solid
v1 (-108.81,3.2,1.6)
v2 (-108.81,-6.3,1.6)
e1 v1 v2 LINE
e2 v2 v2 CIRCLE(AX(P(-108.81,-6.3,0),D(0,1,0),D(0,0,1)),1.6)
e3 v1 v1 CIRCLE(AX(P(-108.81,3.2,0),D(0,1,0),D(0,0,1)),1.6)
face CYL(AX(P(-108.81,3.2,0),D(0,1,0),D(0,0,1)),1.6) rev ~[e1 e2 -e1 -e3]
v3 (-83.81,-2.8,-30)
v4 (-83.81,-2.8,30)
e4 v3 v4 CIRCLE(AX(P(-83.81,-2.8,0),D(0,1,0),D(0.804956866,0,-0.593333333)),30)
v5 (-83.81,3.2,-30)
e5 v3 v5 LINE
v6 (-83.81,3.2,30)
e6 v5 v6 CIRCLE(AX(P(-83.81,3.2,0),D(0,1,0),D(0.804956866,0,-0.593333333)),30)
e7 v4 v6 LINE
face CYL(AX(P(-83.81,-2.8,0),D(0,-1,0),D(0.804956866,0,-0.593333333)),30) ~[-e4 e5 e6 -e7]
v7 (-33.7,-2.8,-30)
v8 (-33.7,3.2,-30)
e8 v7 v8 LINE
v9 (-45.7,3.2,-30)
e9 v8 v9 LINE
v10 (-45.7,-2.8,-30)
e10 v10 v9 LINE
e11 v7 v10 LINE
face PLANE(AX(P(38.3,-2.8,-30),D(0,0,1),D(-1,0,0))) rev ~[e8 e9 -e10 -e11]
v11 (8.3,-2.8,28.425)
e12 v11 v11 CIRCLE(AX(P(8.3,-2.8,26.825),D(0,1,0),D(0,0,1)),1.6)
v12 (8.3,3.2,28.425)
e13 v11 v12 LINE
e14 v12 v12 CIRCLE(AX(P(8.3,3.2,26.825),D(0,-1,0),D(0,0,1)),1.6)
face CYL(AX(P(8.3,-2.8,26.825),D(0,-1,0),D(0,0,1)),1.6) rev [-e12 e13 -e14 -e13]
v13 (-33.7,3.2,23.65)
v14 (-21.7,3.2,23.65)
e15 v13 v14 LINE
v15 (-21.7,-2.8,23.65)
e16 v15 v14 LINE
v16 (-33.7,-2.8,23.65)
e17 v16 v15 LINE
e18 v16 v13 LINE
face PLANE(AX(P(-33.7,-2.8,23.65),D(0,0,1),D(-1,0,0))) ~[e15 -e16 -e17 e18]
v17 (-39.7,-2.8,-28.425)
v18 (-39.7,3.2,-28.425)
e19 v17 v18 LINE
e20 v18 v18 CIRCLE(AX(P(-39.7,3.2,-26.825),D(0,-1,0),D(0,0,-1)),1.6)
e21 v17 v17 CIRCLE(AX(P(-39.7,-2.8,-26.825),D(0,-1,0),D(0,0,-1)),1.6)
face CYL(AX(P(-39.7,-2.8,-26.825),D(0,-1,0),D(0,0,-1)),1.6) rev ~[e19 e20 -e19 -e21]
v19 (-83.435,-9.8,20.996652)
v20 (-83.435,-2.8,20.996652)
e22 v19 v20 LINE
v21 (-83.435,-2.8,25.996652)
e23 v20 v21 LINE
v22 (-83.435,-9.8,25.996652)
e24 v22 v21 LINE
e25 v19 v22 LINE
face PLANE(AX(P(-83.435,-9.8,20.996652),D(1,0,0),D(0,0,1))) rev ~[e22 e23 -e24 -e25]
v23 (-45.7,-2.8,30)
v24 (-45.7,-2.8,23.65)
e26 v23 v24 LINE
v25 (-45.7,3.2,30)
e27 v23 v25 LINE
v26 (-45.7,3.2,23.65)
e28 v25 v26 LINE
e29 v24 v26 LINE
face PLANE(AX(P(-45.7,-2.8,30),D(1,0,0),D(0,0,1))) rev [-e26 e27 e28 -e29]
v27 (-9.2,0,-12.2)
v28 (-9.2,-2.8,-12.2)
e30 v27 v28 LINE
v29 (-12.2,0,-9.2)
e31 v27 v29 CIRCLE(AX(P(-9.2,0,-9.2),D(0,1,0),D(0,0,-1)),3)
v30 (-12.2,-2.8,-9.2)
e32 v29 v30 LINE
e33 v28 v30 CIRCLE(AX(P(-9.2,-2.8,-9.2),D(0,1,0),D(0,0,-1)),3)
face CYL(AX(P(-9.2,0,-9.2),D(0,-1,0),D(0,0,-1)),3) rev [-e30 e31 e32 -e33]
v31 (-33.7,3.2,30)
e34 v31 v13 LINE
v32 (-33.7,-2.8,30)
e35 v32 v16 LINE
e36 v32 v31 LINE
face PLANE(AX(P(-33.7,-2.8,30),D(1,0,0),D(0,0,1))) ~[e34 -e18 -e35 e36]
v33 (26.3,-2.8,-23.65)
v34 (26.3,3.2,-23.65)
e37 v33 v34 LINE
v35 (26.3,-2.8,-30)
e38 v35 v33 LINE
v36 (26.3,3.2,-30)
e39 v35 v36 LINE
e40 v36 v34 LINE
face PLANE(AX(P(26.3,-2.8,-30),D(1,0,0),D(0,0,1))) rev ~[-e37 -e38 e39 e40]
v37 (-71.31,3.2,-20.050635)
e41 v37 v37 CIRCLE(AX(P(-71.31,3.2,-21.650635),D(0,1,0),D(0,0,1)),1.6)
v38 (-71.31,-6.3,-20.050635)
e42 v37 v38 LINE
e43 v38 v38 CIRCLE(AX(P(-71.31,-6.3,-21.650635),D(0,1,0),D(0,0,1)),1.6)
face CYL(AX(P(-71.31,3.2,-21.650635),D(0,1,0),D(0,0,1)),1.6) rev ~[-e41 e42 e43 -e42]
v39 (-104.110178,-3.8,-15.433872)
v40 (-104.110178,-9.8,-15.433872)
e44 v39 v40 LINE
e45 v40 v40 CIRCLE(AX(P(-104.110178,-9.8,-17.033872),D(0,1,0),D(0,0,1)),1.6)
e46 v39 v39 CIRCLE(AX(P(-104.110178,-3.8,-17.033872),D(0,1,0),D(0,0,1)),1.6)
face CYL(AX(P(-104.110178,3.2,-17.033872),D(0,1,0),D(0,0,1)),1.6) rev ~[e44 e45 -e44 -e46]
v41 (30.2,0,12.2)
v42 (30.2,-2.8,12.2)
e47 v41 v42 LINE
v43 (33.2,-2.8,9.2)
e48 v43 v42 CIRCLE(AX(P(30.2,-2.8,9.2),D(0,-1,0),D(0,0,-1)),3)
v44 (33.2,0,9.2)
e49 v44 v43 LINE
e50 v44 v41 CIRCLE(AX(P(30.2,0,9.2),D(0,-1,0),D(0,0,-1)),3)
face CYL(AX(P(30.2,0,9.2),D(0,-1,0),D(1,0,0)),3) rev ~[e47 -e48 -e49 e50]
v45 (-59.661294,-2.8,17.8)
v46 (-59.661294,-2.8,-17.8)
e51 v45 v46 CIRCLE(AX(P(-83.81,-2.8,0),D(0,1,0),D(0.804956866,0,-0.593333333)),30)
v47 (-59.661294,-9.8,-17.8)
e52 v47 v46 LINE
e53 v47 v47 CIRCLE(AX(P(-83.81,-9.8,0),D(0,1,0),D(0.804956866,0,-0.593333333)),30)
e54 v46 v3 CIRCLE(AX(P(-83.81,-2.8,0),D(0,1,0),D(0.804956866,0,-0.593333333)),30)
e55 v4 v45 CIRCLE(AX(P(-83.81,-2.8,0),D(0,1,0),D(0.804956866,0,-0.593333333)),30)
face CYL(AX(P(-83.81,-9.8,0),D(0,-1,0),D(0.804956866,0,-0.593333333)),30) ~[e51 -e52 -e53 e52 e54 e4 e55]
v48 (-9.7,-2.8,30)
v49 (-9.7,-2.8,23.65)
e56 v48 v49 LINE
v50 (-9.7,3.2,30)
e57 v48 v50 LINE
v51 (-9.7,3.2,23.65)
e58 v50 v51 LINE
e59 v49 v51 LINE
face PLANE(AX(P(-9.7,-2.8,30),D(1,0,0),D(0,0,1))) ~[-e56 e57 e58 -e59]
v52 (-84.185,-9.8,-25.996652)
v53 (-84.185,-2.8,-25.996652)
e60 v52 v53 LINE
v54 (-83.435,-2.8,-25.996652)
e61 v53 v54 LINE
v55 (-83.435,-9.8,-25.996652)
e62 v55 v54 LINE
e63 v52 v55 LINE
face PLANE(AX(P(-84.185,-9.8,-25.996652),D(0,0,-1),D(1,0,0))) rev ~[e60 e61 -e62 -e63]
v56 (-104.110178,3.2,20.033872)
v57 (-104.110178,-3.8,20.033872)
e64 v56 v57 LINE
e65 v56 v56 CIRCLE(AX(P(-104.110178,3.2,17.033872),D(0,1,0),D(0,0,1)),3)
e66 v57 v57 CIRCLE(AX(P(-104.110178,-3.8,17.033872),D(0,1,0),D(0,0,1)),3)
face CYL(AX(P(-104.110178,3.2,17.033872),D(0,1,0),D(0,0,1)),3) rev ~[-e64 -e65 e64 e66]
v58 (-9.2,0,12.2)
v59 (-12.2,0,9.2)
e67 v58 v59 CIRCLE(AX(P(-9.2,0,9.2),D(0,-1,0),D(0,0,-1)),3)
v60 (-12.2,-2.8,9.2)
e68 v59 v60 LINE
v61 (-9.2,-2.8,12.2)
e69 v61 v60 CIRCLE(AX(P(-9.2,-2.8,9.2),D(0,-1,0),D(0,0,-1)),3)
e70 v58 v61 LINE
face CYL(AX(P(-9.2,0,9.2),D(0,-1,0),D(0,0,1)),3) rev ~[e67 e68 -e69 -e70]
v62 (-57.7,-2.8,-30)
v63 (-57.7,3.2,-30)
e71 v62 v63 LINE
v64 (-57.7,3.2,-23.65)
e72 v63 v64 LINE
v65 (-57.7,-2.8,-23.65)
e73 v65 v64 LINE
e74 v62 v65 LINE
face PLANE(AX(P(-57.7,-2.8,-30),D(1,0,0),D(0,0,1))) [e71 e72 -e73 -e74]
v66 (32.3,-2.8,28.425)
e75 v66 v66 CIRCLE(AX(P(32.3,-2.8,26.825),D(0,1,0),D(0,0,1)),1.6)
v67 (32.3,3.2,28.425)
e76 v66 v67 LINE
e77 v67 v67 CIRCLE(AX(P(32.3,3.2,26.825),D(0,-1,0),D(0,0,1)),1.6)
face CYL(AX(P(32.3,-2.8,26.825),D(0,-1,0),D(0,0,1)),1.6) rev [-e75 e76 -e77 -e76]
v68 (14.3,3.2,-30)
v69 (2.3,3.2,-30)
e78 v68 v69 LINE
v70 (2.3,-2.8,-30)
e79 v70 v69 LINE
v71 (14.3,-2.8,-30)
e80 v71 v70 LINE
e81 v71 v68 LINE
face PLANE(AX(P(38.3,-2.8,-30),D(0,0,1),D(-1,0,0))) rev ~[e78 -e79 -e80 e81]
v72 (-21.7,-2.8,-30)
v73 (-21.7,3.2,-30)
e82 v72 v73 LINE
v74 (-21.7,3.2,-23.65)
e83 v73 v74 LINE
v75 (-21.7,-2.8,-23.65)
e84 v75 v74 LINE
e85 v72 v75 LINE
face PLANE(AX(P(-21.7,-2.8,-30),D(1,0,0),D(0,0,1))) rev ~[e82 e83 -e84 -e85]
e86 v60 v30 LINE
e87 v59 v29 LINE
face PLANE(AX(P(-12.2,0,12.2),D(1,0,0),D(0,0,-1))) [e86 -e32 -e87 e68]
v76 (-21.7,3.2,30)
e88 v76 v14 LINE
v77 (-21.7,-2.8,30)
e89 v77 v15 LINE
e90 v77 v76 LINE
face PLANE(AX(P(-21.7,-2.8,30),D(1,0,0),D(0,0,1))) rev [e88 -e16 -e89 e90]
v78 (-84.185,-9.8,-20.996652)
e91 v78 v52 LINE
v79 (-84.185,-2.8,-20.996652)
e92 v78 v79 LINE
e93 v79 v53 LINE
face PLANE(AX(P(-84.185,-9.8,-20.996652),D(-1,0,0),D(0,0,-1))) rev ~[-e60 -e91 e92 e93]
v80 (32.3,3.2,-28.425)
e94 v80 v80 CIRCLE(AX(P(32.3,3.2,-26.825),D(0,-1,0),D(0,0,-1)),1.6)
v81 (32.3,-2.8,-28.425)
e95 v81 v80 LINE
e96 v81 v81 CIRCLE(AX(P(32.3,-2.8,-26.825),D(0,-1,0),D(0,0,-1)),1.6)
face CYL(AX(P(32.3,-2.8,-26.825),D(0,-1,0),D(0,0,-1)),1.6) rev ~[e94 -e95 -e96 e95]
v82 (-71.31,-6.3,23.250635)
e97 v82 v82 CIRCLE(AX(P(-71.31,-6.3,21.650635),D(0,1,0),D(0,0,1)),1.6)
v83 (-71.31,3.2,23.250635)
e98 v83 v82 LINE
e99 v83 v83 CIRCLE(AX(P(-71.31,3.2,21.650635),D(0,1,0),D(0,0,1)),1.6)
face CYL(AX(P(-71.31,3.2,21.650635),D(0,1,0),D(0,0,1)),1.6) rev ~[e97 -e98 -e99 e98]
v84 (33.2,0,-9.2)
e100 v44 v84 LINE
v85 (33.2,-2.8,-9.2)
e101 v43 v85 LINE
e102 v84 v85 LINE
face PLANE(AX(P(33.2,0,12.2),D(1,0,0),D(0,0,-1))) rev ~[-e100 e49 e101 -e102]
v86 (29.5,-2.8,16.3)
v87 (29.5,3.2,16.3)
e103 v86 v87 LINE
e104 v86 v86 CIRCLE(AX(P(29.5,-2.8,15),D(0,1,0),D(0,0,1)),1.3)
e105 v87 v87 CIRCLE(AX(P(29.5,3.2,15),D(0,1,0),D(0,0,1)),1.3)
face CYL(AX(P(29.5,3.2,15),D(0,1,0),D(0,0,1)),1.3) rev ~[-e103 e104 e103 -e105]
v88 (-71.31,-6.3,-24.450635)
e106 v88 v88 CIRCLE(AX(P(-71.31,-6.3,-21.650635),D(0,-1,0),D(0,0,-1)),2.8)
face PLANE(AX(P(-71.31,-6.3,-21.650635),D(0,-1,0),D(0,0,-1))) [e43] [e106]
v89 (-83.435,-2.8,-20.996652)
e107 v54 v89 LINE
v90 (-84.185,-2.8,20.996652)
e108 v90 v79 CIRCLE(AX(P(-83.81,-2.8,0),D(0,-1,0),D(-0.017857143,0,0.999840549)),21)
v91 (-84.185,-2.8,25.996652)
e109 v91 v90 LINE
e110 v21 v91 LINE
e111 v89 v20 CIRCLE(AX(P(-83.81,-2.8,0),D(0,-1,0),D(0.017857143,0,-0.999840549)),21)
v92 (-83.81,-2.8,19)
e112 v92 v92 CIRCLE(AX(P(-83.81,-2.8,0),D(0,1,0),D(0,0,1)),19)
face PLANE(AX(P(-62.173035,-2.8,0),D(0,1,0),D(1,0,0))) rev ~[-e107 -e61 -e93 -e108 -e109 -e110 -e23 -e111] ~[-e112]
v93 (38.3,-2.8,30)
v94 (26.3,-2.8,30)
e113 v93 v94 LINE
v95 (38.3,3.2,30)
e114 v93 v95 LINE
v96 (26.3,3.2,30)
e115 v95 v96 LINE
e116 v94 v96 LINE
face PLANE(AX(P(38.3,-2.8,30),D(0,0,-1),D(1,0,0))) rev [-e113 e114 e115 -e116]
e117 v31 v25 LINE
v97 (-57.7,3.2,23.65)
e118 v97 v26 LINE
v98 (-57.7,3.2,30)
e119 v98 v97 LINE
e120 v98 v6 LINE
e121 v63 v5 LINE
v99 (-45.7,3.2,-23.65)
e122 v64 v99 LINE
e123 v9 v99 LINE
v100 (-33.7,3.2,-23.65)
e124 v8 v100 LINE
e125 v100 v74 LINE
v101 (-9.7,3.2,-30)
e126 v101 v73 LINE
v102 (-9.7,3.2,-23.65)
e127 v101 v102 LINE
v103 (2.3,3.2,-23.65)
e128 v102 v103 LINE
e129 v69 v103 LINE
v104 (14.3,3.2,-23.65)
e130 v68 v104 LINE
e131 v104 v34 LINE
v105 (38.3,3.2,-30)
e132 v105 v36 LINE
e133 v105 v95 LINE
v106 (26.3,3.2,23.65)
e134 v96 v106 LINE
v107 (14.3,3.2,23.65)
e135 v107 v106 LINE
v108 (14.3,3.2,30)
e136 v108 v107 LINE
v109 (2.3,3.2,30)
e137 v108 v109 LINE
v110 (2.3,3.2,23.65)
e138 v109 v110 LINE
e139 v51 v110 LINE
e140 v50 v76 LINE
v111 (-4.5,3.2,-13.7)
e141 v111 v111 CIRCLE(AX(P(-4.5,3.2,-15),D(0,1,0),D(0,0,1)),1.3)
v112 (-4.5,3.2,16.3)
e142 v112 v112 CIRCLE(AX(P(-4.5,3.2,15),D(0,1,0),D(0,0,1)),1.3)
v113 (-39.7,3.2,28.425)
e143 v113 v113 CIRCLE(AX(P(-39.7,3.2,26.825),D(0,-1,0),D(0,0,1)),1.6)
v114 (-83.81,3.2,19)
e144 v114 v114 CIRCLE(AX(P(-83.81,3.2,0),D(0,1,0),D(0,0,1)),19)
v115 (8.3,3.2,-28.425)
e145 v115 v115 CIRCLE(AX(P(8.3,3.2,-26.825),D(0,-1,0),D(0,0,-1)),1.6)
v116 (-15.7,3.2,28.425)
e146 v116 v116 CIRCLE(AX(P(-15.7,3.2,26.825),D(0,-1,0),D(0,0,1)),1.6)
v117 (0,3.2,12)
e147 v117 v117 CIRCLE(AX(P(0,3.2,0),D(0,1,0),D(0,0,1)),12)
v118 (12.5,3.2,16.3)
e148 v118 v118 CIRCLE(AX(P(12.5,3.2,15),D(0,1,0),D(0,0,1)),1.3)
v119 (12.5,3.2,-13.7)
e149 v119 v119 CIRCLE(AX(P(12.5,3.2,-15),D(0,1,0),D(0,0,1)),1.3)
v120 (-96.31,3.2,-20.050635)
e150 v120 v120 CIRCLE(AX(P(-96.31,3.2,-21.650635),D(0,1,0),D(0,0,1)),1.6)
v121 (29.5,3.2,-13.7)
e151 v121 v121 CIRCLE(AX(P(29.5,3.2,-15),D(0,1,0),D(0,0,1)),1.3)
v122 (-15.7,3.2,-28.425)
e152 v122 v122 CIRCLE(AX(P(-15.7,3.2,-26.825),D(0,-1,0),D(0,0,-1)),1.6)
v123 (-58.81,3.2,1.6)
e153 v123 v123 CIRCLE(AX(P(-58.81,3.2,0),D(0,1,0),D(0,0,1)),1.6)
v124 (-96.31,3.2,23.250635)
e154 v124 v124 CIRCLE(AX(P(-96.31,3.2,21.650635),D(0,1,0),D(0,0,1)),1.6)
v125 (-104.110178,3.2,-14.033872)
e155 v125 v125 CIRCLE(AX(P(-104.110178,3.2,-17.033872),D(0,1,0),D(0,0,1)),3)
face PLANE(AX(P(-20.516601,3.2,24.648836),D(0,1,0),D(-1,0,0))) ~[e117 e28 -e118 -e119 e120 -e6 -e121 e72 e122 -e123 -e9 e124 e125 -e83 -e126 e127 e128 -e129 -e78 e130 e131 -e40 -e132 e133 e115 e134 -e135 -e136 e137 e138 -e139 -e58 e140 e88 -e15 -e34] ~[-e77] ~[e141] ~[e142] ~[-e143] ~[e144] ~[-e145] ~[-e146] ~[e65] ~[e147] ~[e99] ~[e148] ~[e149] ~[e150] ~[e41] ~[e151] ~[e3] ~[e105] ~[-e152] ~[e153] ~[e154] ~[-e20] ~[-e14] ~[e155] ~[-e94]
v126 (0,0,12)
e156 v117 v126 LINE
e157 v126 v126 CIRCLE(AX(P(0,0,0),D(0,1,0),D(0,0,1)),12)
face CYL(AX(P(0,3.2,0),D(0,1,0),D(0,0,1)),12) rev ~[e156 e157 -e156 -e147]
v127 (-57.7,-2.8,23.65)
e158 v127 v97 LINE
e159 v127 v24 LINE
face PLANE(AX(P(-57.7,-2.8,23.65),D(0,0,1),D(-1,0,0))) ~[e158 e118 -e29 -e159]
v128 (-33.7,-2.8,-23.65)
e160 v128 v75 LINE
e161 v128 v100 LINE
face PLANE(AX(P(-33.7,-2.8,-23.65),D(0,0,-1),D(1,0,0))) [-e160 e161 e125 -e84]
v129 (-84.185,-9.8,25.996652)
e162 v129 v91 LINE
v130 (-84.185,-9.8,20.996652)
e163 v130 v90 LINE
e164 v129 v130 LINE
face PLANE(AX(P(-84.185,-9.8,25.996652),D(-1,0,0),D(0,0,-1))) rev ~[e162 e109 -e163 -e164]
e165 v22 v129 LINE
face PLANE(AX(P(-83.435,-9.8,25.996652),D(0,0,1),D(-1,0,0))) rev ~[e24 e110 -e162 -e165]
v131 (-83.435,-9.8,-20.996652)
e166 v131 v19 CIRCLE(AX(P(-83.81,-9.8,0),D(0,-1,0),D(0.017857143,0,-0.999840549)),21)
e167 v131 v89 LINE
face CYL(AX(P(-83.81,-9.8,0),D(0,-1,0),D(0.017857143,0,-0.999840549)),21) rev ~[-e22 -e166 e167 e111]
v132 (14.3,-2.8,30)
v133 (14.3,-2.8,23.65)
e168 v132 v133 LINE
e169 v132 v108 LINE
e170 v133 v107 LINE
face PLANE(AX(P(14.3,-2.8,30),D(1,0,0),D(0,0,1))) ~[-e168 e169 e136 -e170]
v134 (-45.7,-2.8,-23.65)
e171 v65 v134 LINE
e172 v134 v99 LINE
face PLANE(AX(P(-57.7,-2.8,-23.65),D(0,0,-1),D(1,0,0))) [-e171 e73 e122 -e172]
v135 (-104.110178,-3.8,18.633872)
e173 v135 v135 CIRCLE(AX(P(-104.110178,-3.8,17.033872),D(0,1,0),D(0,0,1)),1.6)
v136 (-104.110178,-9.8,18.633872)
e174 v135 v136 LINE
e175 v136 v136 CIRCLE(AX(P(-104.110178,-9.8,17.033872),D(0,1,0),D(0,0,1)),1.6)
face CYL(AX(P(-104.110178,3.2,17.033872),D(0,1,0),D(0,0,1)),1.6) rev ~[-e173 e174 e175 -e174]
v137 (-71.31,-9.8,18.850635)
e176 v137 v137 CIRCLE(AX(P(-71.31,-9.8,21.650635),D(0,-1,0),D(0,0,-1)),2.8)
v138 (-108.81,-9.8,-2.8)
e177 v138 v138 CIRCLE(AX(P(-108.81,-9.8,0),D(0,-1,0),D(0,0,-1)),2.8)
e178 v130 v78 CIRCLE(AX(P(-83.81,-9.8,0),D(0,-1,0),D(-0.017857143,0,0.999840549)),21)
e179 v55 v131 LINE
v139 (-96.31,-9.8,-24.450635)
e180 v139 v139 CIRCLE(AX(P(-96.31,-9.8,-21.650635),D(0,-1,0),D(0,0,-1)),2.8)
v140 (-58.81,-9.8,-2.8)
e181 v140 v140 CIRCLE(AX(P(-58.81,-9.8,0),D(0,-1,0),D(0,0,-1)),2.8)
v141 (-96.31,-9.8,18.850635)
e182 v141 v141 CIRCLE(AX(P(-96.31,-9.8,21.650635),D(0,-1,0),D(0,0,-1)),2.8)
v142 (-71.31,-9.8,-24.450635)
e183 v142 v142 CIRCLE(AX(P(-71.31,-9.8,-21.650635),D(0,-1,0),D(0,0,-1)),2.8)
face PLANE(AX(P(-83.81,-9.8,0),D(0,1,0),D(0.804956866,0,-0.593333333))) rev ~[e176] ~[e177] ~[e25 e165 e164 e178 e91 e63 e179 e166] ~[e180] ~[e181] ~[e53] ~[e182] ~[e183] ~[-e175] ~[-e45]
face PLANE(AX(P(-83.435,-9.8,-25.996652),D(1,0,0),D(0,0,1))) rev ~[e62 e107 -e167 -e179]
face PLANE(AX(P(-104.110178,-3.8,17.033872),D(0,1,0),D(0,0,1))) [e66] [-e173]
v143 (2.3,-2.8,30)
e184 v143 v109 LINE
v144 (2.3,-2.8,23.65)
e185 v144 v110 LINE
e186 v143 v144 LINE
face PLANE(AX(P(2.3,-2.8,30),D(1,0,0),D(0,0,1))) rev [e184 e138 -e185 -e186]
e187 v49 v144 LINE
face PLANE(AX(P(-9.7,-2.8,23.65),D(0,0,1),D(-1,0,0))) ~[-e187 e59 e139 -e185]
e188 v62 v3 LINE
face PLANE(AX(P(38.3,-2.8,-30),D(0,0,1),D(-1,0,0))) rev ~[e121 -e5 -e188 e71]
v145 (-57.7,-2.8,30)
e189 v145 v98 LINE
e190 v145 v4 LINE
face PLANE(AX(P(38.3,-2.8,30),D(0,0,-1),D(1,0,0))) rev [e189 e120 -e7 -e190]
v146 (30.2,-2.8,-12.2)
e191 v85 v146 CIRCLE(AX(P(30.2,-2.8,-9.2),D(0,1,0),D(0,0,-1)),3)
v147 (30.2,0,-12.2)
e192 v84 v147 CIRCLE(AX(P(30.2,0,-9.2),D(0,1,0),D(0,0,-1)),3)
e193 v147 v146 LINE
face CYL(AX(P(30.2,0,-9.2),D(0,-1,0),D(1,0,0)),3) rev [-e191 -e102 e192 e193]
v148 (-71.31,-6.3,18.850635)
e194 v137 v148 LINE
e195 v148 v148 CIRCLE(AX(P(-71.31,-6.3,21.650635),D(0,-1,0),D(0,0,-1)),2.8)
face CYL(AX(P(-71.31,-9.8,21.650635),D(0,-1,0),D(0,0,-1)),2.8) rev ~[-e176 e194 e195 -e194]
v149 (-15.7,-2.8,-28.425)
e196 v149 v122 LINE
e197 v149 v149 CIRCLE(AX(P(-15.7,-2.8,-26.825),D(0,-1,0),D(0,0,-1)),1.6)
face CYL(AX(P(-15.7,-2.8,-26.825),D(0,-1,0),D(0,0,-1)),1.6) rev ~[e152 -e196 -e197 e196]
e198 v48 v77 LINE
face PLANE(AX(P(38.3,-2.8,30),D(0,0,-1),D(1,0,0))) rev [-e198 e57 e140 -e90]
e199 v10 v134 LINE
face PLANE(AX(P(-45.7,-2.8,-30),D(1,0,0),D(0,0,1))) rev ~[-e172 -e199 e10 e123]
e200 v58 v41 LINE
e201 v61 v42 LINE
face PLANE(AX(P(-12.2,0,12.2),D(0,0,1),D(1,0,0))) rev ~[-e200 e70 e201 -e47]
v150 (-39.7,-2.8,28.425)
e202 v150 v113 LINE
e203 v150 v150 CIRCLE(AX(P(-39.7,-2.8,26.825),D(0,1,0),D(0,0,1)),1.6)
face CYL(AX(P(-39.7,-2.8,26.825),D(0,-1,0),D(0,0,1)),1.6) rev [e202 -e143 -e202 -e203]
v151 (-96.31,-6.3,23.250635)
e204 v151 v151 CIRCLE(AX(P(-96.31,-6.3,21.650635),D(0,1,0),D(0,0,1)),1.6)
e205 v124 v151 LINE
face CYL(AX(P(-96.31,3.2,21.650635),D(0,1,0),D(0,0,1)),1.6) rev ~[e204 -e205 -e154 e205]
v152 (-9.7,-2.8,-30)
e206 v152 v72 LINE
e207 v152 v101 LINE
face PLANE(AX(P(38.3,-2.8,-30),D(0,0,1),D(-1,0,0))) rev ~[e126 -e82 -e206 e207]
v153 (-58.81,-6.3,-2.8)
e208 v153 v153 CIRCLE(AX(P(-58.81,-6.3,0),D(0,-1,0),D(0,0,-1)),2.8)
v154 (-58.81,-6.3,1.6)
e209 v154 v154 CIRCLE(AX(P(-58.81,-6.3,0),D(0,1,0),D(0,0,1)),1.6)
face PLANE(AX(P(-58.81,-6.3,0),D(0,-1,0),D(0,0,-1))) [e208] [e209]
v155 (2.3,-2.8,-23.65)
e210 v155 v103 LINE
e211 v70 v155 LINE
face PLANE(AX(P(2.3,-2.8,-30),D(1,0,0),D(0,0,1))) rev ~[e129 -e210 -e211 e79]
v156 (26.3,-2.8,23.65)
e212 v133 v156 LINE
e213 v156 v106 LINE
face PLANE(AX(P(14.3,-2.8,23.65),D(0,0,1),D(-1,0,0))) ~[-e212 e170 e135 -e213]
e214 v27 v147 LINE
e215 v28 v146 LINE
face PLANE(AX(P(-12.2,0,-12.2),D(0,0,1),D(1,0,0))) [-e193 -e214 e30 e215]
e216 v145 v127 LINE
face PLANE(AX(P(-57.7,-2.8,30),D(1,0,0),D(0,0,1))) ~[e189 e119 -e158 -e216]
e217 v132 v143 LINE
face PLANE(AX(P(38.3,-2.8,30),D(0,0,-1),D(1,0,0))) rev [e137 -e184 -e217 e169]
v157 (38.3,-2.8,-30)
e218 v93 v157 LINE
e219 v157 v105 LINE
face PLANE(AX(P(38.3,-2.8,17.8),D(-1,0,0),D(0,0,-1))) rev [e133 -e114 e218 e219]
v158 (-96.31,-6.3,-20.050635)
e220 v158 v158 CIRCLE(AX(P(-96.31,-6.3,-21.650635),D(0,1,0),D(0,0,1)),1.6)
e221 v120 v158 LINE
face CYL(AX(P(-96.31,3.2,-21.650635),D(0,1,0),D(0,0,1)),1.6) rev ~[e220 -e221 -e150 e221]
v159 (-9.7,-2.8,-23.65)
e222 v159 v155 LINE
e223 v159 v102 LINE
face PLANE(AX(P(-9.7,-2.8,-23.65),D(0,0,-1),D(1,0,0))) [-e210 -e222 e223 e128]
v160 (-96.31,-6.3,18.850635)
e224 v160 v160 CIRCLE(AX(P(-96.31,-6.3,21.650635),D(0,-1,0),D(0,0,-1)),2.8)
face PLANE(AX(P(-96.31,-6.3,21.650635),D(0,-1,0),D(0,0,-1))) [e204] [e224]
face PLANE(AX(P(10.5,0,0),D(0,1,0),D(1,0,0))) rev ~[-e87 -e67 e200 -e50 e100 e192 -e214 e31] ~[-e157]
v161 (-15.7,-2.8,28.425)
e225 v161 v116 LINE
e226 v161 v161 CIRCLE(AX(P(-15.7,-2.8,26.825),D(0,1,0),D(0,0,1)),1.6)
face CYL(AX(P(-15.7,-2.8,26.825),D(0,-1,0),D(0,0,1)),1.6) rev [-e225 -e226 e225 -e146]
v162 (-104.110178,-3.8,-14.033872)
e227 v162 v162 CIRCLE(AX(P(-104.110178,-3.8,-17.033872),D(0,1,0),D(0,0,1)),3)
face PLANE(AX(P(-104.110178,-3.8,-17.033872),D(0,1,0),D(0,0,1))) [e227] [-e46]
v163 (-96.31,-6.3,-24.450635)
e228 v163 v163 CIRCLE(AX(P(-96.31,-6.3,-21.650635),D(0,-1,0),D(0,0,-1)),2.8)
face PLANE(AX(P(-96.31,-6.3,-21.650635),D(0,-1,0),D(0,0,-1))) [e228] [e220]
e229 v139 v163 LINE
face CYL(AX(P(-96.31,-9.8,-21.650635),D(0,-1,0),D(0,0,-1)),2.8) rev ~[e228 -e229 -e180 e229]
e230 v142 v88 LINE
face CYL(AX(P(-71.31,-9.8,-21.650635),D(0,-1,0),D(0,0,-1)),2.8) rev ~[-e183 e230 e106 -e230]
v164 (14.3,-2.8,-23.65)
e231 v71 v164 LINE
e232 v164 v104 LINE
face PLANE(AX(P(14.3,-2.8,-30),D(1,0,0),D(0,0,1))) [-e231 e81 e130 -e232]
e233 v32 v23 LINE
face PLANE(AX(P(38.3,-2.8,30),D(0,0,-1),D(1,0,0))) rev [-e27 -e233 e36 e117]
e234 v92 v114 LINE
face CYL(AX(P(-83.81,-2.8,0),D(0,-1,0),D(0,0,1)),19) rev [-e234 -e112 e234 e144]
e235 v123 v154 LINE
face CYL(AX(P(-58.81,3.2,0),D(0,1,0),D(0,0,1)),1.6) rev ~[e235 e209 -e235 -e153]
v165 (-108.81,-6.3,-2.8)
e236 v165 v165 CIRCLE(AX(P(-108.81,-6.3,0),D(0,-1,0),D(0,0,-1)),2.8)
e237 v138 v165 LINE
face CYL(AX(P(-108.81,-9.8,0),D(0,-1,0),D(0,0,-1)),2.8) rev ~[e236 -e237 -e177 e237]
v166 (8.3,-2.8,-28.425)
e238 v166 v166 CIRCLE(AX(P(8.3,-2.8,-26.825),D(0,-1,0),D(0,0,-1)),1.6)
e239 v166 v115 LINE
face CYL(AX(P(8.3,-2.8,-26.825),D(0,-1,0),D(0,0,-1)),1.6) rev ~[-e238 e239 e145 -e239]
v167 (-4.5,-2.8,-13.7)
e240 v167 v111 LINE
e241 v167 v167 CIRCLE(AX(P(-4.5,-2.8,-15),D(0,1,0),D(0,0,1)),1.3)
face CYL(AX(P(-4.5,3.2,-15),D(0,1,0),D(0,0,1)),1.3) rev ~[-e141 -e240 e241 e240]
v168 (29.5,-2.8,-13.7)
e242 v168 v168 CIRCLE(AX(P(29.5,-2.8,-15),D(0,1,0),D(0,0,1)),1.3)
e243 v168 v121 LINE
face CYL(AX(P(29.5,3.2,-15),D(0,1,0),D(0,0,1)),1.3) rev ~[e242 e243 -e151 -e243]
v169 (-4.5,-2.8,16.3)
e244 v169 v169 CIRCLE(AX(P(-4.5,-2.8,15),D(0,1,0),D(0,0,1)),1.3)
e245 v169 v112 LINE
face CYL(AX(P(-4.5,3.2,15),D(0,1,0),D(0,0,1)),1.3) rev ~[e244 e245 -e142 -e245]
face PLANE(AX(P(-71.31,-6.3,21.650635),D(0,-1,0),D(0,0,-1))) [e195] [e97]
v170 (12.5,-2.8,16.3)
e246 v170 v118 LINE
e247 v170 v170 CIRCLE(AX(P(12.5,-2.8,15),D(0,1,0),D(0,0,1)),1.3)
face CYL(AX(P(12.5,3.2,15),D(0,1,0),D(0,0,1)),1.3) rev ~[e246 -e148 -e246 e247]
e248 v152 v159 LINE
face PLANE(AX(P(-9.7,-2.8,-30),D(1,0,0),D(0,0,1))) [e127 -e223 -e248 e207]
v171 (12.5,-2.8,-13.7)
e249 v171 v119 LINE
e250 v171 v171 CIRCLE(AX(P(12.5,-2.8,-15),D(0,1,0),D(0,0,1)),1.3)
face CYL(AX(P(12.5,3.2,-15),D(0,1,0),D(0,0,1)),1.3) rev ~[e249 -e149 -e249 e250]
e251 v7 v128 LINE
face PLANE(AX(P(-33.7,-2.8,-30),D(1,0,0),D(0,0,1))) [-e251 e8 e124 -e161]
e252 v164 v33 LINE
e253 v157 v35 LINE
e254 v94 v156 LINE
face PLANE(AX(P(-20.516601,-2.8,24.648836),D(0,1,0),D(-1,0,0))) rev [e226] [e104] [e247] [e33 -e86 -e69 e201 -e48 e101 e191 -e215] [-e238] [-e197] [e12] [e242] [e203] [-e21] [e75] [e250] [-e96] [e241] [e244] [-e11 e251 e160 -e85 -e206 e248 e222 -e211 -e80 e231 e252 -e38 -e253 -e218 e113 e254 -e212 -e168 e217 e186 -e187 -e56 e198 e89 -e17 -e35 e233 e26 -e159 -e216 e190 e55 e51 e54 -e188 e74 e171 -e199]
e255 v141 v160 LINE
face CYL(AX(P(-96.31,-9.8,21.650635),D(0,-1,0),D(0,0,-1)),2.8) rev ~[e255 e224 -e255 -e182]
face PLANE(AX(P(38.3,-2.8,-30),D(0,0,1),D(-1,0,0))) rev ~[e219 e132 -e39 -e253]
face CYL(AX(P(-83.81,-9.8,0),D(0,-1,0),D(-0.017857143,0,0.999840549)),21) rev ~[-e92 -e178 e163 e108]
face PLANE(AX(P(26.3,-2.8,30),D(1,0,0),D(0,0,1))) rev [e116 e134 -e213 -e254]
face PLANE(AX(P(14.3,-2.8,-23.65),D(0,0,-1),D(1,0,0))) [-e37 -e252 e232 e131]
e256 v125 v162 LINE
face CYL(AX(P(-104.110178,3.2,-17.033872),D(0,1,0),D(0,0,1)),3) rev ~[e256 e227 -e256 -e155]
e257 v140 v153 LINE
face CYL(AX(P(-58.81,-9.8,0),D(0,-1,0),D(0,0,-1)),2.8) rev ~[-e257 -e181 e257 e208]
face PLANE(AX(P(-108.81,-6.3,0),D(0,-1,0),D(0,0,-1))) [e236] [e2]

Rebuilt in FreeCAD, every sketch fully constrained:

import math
import FreeCAD as App
import Part
import Sketcher
from FreeCAD import Vector
Q = App.Units.Quantity


def edges_at(feature, points):
    """Names of the edges that pass closest to the given points."""
    edges = feature.Shape.Edges
    near = lambda p: min(range(len(edges)), key=lambda i: edges[i].distToShape(Part.Vertex(*p))[0])
    return sorted({f"Edge{near(p) + 1}" for p in points})


def add_polygon(sketch, points):
    """Adds a closed chain of lines whose ends are joined by coincident constraints."""
    first, n = sketch.GeometryCount, len(points)
    for a, b in zip(points, points[1:] + points[:1]):
        sketch.addGeometry(Part.LineSegment(App.Vector(*a, 0), App.Vector(*b, 0)), False)
    for i in range(n):
        sketch.addConstraint(Sketcher.Constraint("Coincident", first + i, 2, first + (i + 1) % n, 1))

doc = App.newDocument("Part")
body = doc.addObject("PartDesign::Body", "Body")

sketch1 = body.newObject("Sketcher::SketchObject", "Sketch")
sketch1.AttachmentSupport = (doc.getObject("XZ_Plane"), [""])
sketch1.MapMode = "FlatFace"
add_polygon(sketch1, [(-17.3, -17.8), (-17.3, 17.8), (38.3, 17.8), (38.3, -17.8)])
sketch1.addGeometry(Part.Circle(Vector(-4.5, 15, 0), Vector(0, 0, 1), 1.3), False)
sketch1.addGeometry(Part.Circle(Vector(12.5, 15, 0), Vector(0, 0, 1), 1.3), False)
sketch1.addGeometry(Part.Circle(Vector(29.5, 15, 0), Vector(0, 0, 1), 1.3), False)
sketch1.addGeometry(Part.Circle(Vector(-4.5, -15, 0), Vector(0, 0, 1), 1.3), False)
add_polygon(sketch1, [(33.2, 12.2), (-12.2, 12.2), (-12.2, -12.2), (33.2, -12.2)])
sketch1.addGeometry(Part.Circle(Vector(12.5, -15, 0), Vector(0, 0, 1), 1.3), False)
sketch1.addGeometry(Part.Circle(Vector(29.5, -15, 0), Vector(0, 0, 1), 1.3), False)
sketch1.addConstraint([
    Sketcher.Constraint("Vertical", 0),
    Sketcher.Constraint("Horizontal", 1),
    Sketcher.Constraint("Vertical", 2),
    Sketcher.Constraint("Horizontal", 3),
    Sketcher.Constraint("Horizontal", 8),
    Sketcher.Constraint("Vertical", 9),
    Sketcher.Constraint("Horizontal", 10),
    Sketcher.Constraint("Vertical", 11),
    Sketcher.Constraint("Equal", 4, 5),
    Sketcher.Constraint("Equal", 5, 6),
    Sketcher.Constraint("Equal", 6, 7),
    Sketcher.Constraint("Equal", 7, 12),
    Sketcher.Constraint("Equal", 12, 13),
    Sketcher.Constraint("Symmetric", 4, 3, 7, 3, -1),
    Sketcher.Constraint("Symmetric", 5, 3, 12, 3, -1),
    Sketcher.Constraint("Symmetric", 6, 3, 13, 3, -1),
    Sketcher.Constraint("Horizontal", 4, 3, 5, 3),
    Sketcher.Constraint("Horizontal", 5, 3, 6, 3),
    Sketcher.Constraint("Diameter", 4, Q("2.6 mm")),
    Sketcher.Constraint("DistanceX", 1, 1, 1, 2, Q("55.6 mm")),
    Sketcher.Constraint("DistanceX", 8, 2, 8, 1, Q("45.4 mm")),
    Sketcher.Constraint("DistanceY", 0, 1, 0, 2, Q("35.6 mm")),
    Sketcher.Constraint("DistanceY", 9, 2, 9, 1, Q("24.4 mm")),
    Sketcher.Constraint("DistanceY", -1, 1, 4, 3, Q("15 mm")),
    Sketcher.Constraint("DistanceX", 4, 3, 5, 3, Q("17 mm")),
    Sketcher.Constraint("DistanceX", 5, 3, 6, 3, Q("17 mm")),
    Sketcher.Constraint("DistanceY", 3, 2, 8, 2, Q("30 mm")),
    Sketcher.Constraint("DistanceX", 4, 3, -1, 1, Q("4.5 mm")),
    Sketcher.Constraint("DistanceX", 0, 2, -1, 1, Q("17.3 mm")),
    Sketcher.Constraint("DistanceY", -1, 1, 0, 2, Q("17.8 mm")),
    Sketcher.Constraint("DistanceX", 8, 2, -1, 1, Q("12.2 mm")),
])
pad1 = body.newObject("PartDesign::Pad", "Pad")
pad1.Profile = sketch1
pad1.Length = 2.8

sketch2 = body.newObject("Sketcher::SketchObject", "Sketch001")
sketch2.AttachmentSupport = (doc.getObject("XZ_Plane"), [""])
sketch2.MapMode = "FlatFace"
sketch2.AttachmentOffset = App.Placement(Vector(0, 0, -3.2), App.Rotation())
add_polygon(sketch2, [(-17.3, -17.8), (-17.3, 17.8), (38.3, 17.8), (38.3, -17.8)])
sketch2.addGeometry(Part.Circle(Vector(-4.5, 15, 0), Vector(0, 0, 1), 1.3), False)
sketch2.addGeometry(Part.Circle(Vector(12.5, 15, 0), Vector(0, 0, 1), 1.3), False)
sketch2.addGeometry(Part.Circle(Vector(29.5, 15, 0), Vector(0, 0, 1), 1.3), False)
sketch2.addGeometry(Part.Circle(Vector(-4.5, -15, 0), Vector(0, 0, 1), 1.3), False)
sketch2.addGeometry(Part.Circle(Vector(12.5, -15, 0), Vector(0, 0, 1), 1.3), False)
sketch2.addGeometry(Part.Circle(Vector(29.5, -15, 0), Vector(0, 0, 1), 1.3), False)
sketch2.addGeometry(Part.Circle(Vector(0, 0, 0), Vector(0, 0, 1), 12), False)
sketch2.addConstraint([
    Sketcher.Constraint("Vertical", 0),
    Sketcher.Constraint("Horizontal", 1),
    Sketcher.Constraint("Vertical", 2),
    Sketcher.Constraint("Horizontal", 3),
    Sketcher.Constraint("Coincident", 10, 3, -1, 1),
    Sketcher.Constraint("Equal", 4, 5),
    Sketcher.Constraint("Equal", 5, 6),
    Sketcher.Constraint("Equal", 6, 7),
    Sketcher.Constraint("Equal", 7, 8),
    Sketcher.Constraint("Equal", 8, 9),
    Sketcher.Constraint("Symmetric", 4, 3, 7, 3, -1),
    Sketcher.Constraint("Symmetric", 5, 3, 8, 3, -1),
    Sketcher.Constraint("Symmetric", 6, 3, 9, 3, -1),
    Sketcher.Constraint("Horizontal", 4, 3, 5, 3),
    Sketcher.Constraint("Horizontal", 5, 3, 6, 3),
    Sketcher.Constraint("Diameter", 10, Q("24 mm")),
    Sketcher.Constraint("Diameter", 4, Q("2.6 mm")),
    Sketcher.Constraint("DistanceX", 1, 1, 1, 2, Q("55.6 mm")),
    Sketcher.Constraint("DistanceY", 0, 1, 0, 2, Q("35.6 mm")),
    Sketcher.Constraint("DistanceY", -1, 1, 4, 3, Q("15 mm")),
    Sketcher.Constraint("DistanceX", 4, 3, 5, 3, Q("17 mm")),
    Sketcher.Constraint("DistanceX", 5, 3, 6, 3, Q("17 mm")),
    Sketcher.Constraint("DistanceX", 4, 3, -1, 1, Q("4.5 mm")),
    Sketcher.Constraint("DistanceX", 0, 2, -1, 1, Q("17.3 mm")),
    Sketcher.Constraint("DistanceY", -1, 1, 0, 2, Q("17.8 mm")),
])
pad2 = body.newObject("PartDesign::Pad", "Pad001")
pad2.Profile = sketch2
pad2.Length = 3.2
doc.recompute()

fillet = body.newObject("PartDesign::Fillet", "Fillet")
fillet.Base = (pad2, edges_at(pad2, [
    (-12.2, -1.4, -12.2),
    (-12.2, -1.4, 12.2),
    (33.2, -1.4, 12.2),
    (33.2, -1.4, -12.2),
]))
fillet.Radius = 3

sketch3 = body.newObject("Sketcher::SketchObject", "Sketch002")
sketch3.AttachmentSupport = (doc.getObject("XZ_Plane"), [""])
sketch3.MapMode = "FlatFace"
sketch3.AttachmentOffset = App.Placement(Vector(0, 0, 2.8), App.Rotation())
sketch3.addGeometry([
    Part.LineSegment(Vector(-17.3, -17.8, 0), Vector(-59.661294, -17.8, 0)),
    Part.ArcOfCircle(Part.Circle(Vector(-83.81, 0, 0), Vector(0, 0, 1), 30), math.radians(36.39391), math.radians(323.60609)),
    Part.LineSegment(Vector(-59.661294, 17.8, 0), Vector(-17.3, 17.8, 0)),
    Part.LineSegment(Vector(-17.3, 17.8, 0), Vector(-17.3, -17.8, 0)),
    Part.Circle(Vector(-83.81, 0, 0), Vector(0, 0, 1), 19),
], False)
sketch3.addConstraint([
    Sketcher.Constraint("Coincident", 0, 2, 1, 2),
    Sketcher.Constraint("Coincident", 1, 1, 2, 1),
    Sketcher.Constraint("Coincident", 2, 2, 3, 1),
    Sketcher.Constraint("Coincident", 3, 2, 0, 1),
    Sketcher.Constraint("Horizontal", 0),
    Sketcher.Constraint("Horizontal", 2),
    Sketcher.Constraint("Vertical", 3),
    Sketcher.Constraint("Coincident", 4, 3, 1, 3),
    Sketcher.Constraint("Symmetric", 0, 2, 1, 1, -1),
    Sketcher.Constraint("Diameter", 4, Q("38 mm")),
    Sketcher.Constraint("Radius", 1, Q("30 mm")),
    Sketcher.Constraint("DistanceY", 3, 2, 3, 1, Q("35.6 mm")),
    Sketcher.Constraint("DistanceX", 2, 2, -1, 1, Q("17.3 mm")),
    Sketcher.Constraint("DistanceX", 1, 3, -1, 1, Q("83.81 mm")),
])
pad3 = body.newObject("PartDesign::Pad", "Pad002")
pad3.Profile = sketch3
pad3.Length = 6
pad3.Reversed = True

sketch4 = body.newObject("Sketcher::SketchObject", "Sketch003")
sketch4.AttachmentSupport = (doc.getObject("XZ_Plane"), [""])
sketch4.MapMode = "FlatFace"
sketch4.AttachmentOffset = App.Placement(Vector(0, 0, 9.8), App.Rotation())
sketch4.addGeometry([
    Part.Circle(Vector(-83.81, 0, 0), Vector(0, 0, 1), 30),
    Part.ArcOfCircle(Part.Circle(Vector(-83.81, 0, 0), Vector(0, 0, 1), 21), math.radians(91.023193), math.radians(268.976807)),
    Part.LineSegment(Vector(-84.185, -20.996652, 0), Vector(-84.185, -25.996652, 0)),
    Part.LineSegment(Vector(-84.185, -25.996652, 0), Vector(-83.435, -25.996652, 0)),
    Part.LineSegment(Vector(-83.435, -25.996652, 0), Vector(-83.435, -20.996652, 0)),
    Part.ArcOfCircle(Part.Circle(Vector(-83.81, 0, 0), Vector(0, 0, 1), 21), math.radians(-88.976807), math.radians(88.976807)),
    Part.LineSegment(Vector(-83.435, 20.996652, 0), Vector(-83.435, 25.996652, 0)),
    Part.LineSegment(Vector(-83.435, 25.996652, 0), Vector(-84.185, 25.996652, 0)),
    Part.LineSegment(Vector(-84.185, 25.996652, 0), Vector(-84.185, 20.996652, 0)),
], False)
sketch4.addConstraint([
    Sketcher.Constraint("Coincident", 1, 2, 2, 1),
    Sketcher.Constraint("Coincident", 2, 2, 3, 1),
    Sketcher.Constraint("Coincident", 3, 2, 4, 1),
    Sketcher.Constraint("Coincident", 4, 2, 5, 1),
    Sketcher.Constraint("Coincident", 5, 2, 6, 1),
    Sketcher.Constraint("Coincident", 6, 2, 7, 1),
    Sketcher.Constraint("Coincident", 7, 2, 8, 1),
    Sketcher.Constraint("Coincident", 8, 2, 1, 1),
    Sketcher.Constraint("Vertical", 2),
    Sketcher.Constraint("Horizontal", 3),
    Sketcher.Constraint("Vertical", 4),
    Sketcher.Constraint("Vertical", 6),
    Sketcher.Constraint("Horizontal", 7),
    Sketcher.Constraint("Vertical", 8),
    Sketcher.Constraint("Coincident", 1, 3, 0, 3),
    Sketcher.Constraint("Coincident", 5, 3, 0, 3),
    Sketcher.Constraint("Equal", 1, 5),
    Sketcher.Constraint("Symmetric", 4, 2, 5, 2, -1),
    Sketcher.Constraint("Symmetric", 2, 2, 7, 2, -1),
    Sketcher.Constraint("Horizontal", 1, 2, 4, 2),
    Sketcher.Constraint("Diameter", 0, Q("60 mm")),
    Sketcher.Constraint("Radius", 1, Q("21 mm")),
    Sketcher.Constraint("DistanceY", 2, 2, 2, 1, Q("5 mm")),
    Sketcher.Constraint("DistanceX", 3, 1, 3, 2, Q("0.75 mm")),
    Sketcher.Constraint("DistanceX", 0, 3, -1, 1, Q("83.81 mm")),
])
pad4 = body.newObject("PartDesign::Pad", "Pad003")
pad4.Profile = sketch4
pad4.Length = 7
pad4.Reversed = True

sketch5 = body.newObject("Sketcher::SketchObject", "Sketch004")
sketch5.AttachmentSupport = (doc.getObject("XZ_Plane"), [""])
sketch5.MapMode = "FlatFace"
sketch5.AttachmentOffset = App.Placement(Vector(0, 0, -3.2), App.Rotation())
sketch5.addGeometry([
    Part.Circle(Vector(-58.81, 0, 0), Vector(0, 0, 1), 1.6),
    Part.Circle(Vector(-71.31, 21.650635, 0), Vector(0, 0, 1), 1.6),
    Part.Circle(Vector(-96.31, 21.650635, 0), Vector(0, 0, 1), 1.6),
    Part.Circle(Vector(-108.81, 0, 0), Vector(0, 0, 1), 1.6),
    Part.Circle(Vector(-96.31, -21.650635, 0), Vector(0, 0, 1), 1.6),
    Part.Circle(Vector(-71.31, -21.650635, 0), Vector(0, 0, 1), 1.6),
], False)
sketch5.addConstraint([
    Sketcher.Constraint("Equal", 0, 1),
    Sketcher.Constraint("Equal", 1, 2),
    Sketcher.Constraint("Equal", 2, 3),
    Sketcher.Constraint("Equal", 3, 4),
    Sketcher.Constraint("Equal", 4, 5),
    Sketcher.Constraint("Symmetric", 2, 3, 4, 3, -1),
    Sketcher.Constraint("Symmetric", 1, 3, 5, 3, -1),
    Sketcher.Constraint("PointOnObject", 0, 3, -1),
    Sketcher.Constraint("PointOnObject", 3, 3, -1),
    Sketcher.Constraint("Horizontal", 1, 3, 2, 3),
    Sketcher.Constraint("Diameter", 0, Q("3.2 mm")),
    Sketcher.Constraint("DistanceX", 2, 3, 1, 3, Q("25 mm")),
    Sketcher.Constraint("DistanceX", 3, 3, 0, 3, Q("50 mm")),
    Sketcher.Constraint("DistanceX", 1, 3, 0, 3, Q("12.5 mm")),
    Sketcher.Constraint("DistanceX", 0, 3, -1, 1, Q("58.81 mm")),
    Sketcher.Constraint("DistanceY", 4, 3, 2, 3, Q("43.30127 mm")),
])
pocket1 = body.newObject("PartDesign::Pocket", "Pocket")
pocket1.Profile = sketch5
pocket1.Type = "ThroughAll"
pocket1.Reversed = True

sketch6 = body.newObject("Sketcher::SketchObject", "Sketch005")
sketch6.AttachmentSupport = (doc.getObject("XZ_Plane"), [""])
sketch6.MapMode = "FlatFace"
sketch6.AttachmentOffset = App.Placement(Vector(0, 0, 9.8), App.Rotation())
sketch6.addGeometry([
    Part.Circle(Vector(-96.31, -21.650635, 0), Vector(0, 0, 1), 2.8),
    Part.Circle(Vector(-108.81, 0, 0), Vector(0, 0, 1), 2.8),
    Part.Circle(Vector(-96.31, 21.650635, 0), Vector(0, 0, 1), 2.8),
    Part.Circle(Vector(-71.31, 21.650635, 0), Vector(0, 0, 1), 2.8),
    Part.Circle(Vector(-58.81, 0, 0), Vector(0, 0, 1), 2.8),
    Part.Circle(Vector(-71.31, -21.650635, 0), Vector(0, 0, 1), 2.8),
], False)
sketch6.addConstraint([
    Sketcher.Constraint("Equal", 0, 1),
    Sketcher.Constraint("Equal", 1, 2),
    Sketcher.Constraint("Equal", 2, 3),
    Sketcher.Constraint("Equal", 3, 4),
    Sketcher.Constraint("Equal", 4, 5),
    Sketcher.Constraint("Symmetric", 0, 3, 2, 3, -1),
    Sketcher.Constraint("Symmetric", 3, 3, 5, 3, -1),
    Sketcher.Constraint("PointOnObject", 1, 3, -1),
    Sketcher.Constraint("PointOnObject", 4, 3, -1),
    Sketcher.Constraint("Horizontal", 2, 3, 3, 3),
    Sketcher.Constraint("Diameter", 0, Q("5.6 mm")),
    Sketcher.Constraint("DistanceX", 2, 3, 3, 3, Q("25 mm")),
    Sketcher.Constraint("DistanceX", 1, 3, 4, 3, Q("50 mm")),
    Sketcher.Constraint("DistanceX", 1, 3, 0, 3, Q("12.5 mm")),
    Sketcher.Constraint("DistanceX", 0, 3, -1, 1, Q("96.31 mm")),
    Sketcher.Constraint("DistanceY", 0, 3, 2, 3, Q("43.30127 mm")),
])
pocket2 = body.newObject("PartDesign::Pocket", "Pocket001")
pocket2.Profile = sketch6
pocket2.Length = 3.5

sketch7 = body.newObject("Sketcher::SketchObject", "Sketch006")
sketch7.AttachmentSupport = (doc.getObject("XZ_Plane"), [""])
sketch7.MapMode = "FlatFace"
sketch7.AttachmentOffset = App.Placement(Vector(0, 0, 2.8), App.Rotation())
sketch7.addGeometry([
    Part.LineSegment(Vector(38.3, -17.8, 0), Vector(38.3, -30, 0)),
    Part.LineSegment(Vector(38.3, -30, 0), Vector(-83.81, -30, 0)),
    Part.ArcOfCircle(Part.Circle(Vector(-83.81, 0, 0), Vector(0, 0, 1), 30), math.radians(-90), math.radians(-36.39391)),
    Part.LineSegment(Vector(-59.661294, -17.8, 0), Vector(38.3, -17.8, 0)),
], False)
sketch7.addConstraint([
    Sketcher.Constraint("Coincident", 0, 2, 1, 1),
    Sketcher.Constraint("Tangent", 1, 2, 2, 1),
    Sketcher.Constraint("Coincident", 2, 2, 3, 1),
    Sketcher.Constraint("Coincident", 3, 2, 0, 1),
    Sketcher.Constraint("Vertical", 0),
    Sketcher.Constraint("Horizontal", 1),
    Sketcher.Constraint("Horizontal", 3),
    Sketcher.Constraint("PointOnObject", 2, 3, -1),
    Sketcher.Constraint("Radius", 2, Q("30 mm")),
    Sketcher.Constraint("DistanceY", 0, 2, 0, 1, Q("12.2 mm")),
    Sketcher.Constraint("DistanceX", 1, 2, 1, 1, Q("122.11 mm")),
    Sketcher.Constraint("DistanceX", -1, 1, 0, 2, Q("38.3 mm")),
])
pad5 = body.newObject("PartDesign::Pad", "Pad004")
pad5.Profile = sketch7
pad5.Length = 6
pad5.Reversed = True
doc.recompute()

mirrored = body.newObject("PartDesign::Mirrored", "Mirrored")
mirrored.Originals = [pad5]
mirrored.MirrorPlane = (doc.getObject("XY_Plane"), [""])
body.Tip = mirrored

sketch8 = body.newObject("Sketcher::SketchObject", "Sketch007")
sketch8.AttachmentSupport = (doc.getObject("XZ_Plane"), [""])
sketch8.MapMode = "FlatFace"
sketch8.AttachmentOffset = App.Placement(Vector(0, 0, 2.8), App.Rotation())
add_polygon(sketch8, [(14.3, -23.65), (14.3, -30), (26.3, -30), (26.3, -23.65)])
add_polygon(sketch8, [(-9.7, -23.65), (-9.7, -30), (2.3, -30), (2.3, -23.65)])
add_polygon(sketch8, [(-33.7, -23.65), (-33.7, -30), (-21.7, -30), (-21.7, -23.65)])
add_polygon(sketch8, [(-57.7, -23.65), (-57.7, -30), (-45.7, -30), (-45.7, -23.65)])
sketch8.addConstraint([
    Sketcher.Constraint("Vertical", 0),
    Sketcher.Constraint("Horizontal", 1),
    Sketcher.Constraint("Vertical", 2),
    Sketcher.Constraint("Horizontal", 3),
    Sketcher.Constraint("Vertical", 4),
    Sketcher.Constraint("Horizontal", 5),
    Sketcher.Constraint("Vertical", 6),
    Sketcher.Constraint("Horizontal", 7),
    Sketcher.Constraint("Vertical", 8),
    Sketcher.Constraint("Horizontal", 9),
    Sketcher.Constraint("Vertical", 10),
    Sketcher.Constraint("Horizontal", 11),
    Sketcher.Constraint("Vertical", 12),
    Sketcher.Constraint("Horizontal", 13),
    Sketcher.Constraint("Vertical", 14),
    Sketcher.Constraint("Horizontal", 15),
    Sketcher.Constraint("Horizontal", 1, 2, 4, 2),
    Sketcher.Constraint("Horizontal", 3, 2, 6, 2),
    Sketcher.Constraint("Horizontal", 5, 2, 8, 2),
    Sketcher.Constraint("Horizontal", 7, 2, 10, 2),
    Sketcher.Constraint("Horizontal", 9, 2, 12, 2),
    Sketcher.Constraint("Horizontal", 11, 2, 14, 2),
    Sketcher.Constraint("Equal", 3, 5),
    Sketcher.Constraint("Equal", 7, 9),
    Sketcher.Constraint("Equal", 11, 13),
    Sketcher.Constraint("DistanceX", 1, 1, 1, 2, Q("12 mm")),
    Sketcher.Constraint("DistanceY", 0, 2, -1, 1, Q("30 mm")),
    Sketcher.Constraint("DistanceX", 4, 2, 0, 2, Q("24 mm")),
    Sketcher.Constraint("DistanceX", 8, 2, 4, 2, Q("24 mm")),
    Sketcher.Constraint("DistanceX", 12, 2, 8, 2, Q("24 mm")),
    Sketcher.Constraint("DistanceY", 0, 2, 0, 1, Q("6.35 mm")),
    Sketcher.Constraint("DistanceX", -1, 1, 0, 2, Q("14.3 mm")),
])
pocket3 = body.newObject("PartDesign::Pocket", "Pocket002")
pocket3.Profile = sketch8
pocket3.Type = "ThroughAll"
doc.recompute()

mirrored2 = body.newObject("PartDesign::Mirrored", "Mirrored001")
mirrored2.Originals = [pocket3]
mirrored2.MirrorPlane = (doc.getObject("XY_Plane"), [""])
body.Tip = mirrored2

sketch9 = body.newObject("Sketcher::SketchObject", "Sketch008")
sketch9.AttachmentSupport = (doc.getObject("XZ_Plane"), [""])
sketch9.MapMode = "FlatFace"
sketch9.AttachmentOffset = App.Placement(Vector(0, 0, 2.8), App.Rotation())
sketch9.addGeometry([
    Part.Circle(Vector(-39.7, -26.825, 0), Vector(0, 0, 1), 1.6),
    Part.Circle(Vector(-15.7, -26.825, 0), Vector(0, 0, 1), 1.6),
    Part.Circle(Vector(8.3, -26.825, 0), Vector(0, 0, 1), 1.6),
    Part.Circle(Vector(32.3, -26.825, 0), Vector(0, 0, 1), 1.6),
], False)
sketch9.addConstraint([
    Sketcher.Constraint("Equal", 0, 1),
    Sketcher.Constraint("Equal", 1, 2),
    Sketcher.Constraint("Equal", 2, 3),
    Sketcher.Constraint("Horizontal", 0, 3, 1, 3),
    Sketcher.Constraint("Horizontal", 1, 3, 2, 3),
    Sketcher.Constraint("Horizontal", 2, 3, 3, 3),
    Sketcher.Constraint("Diameter", 0, Q("3.2 mm")),
    Sketcher.Constraint("DistanceX", 0, 3, 1, 3, Q("24 mm")),
    Sketcher.Constraint("DistanceX", 1, 3, 2, 3, Q("24 mm")),
    Sketcher.Constraint("DistanceX", 2, 3, 3, 3, Q("24 mm")),
    Sketcher.Constraint("DistanceX", 0, 3, -1, 1, Q("39.7 mm")),
    Sketcher.Constraint("DistanceY", 0, 3, -1, 1, Q("26.825 mm")),
])
pocket4 = body.newObject("PartDesign::Pocket", "Pocket003")
pocket4.Profile = sketch9
pocket4.Type = "ThroughAll"
doc.recompute()

mirrored3 = body.newObject("PartDesign::Mirrored", "Mirrored002")
mirrored3.Originals = [pocket4]
mirrored3.MirrorPlane = (doc.getObject("XY_Plane"), [""])
body.Tip = mirrored3

sketch10 = body.newObject("Sketcher::SketchObject", "Sketch009")
sketch10.AttachmentSupport = (doc.getObject("XZ_Plane"), [""])
sketch10.MapMode = "FlatFace"
sketch10.AttachmentOffset = App.Placement(Vector(0, 0, -3.2), App.Rotation())
sketch10.addGeometry([
    Part.Circle(Vector(-104.110178, 17.033872, 0), Vector(0, 0, 1), 1.6),
    Part.Circle(Vector(-104.110178, -17.033872, 0), Vector(0, 0, 1), 1.6),
], False)
sketch10.addConstraint([
    Sketcher.Constraint("Equal", 0, 1),
    Sketcher.Constraint("Symmetric", 0, 3, 1, 3, -1),
    Sketcher.Constraint("Diameter", 0, Q("3.2 mm")),
    Sketcher.Constraint("DistanceY", -1, 1, 0, 3, Q("17.033872 mm")),
    Sketcher.Constraint("DistanceX", 0, 3, -1, 1, Q("104.110178 mm")),
])
pocket5 = body.newObject("PartDesign::Pocket", "Pocket004")
pocket5.Profile = sketch10
pocket5.Type = "ThroughAll"
pocket5.Reversed = True

sketch11 = body.newObject("Sketcher::SketchObject", "Sketch010")
sketch11.AttachmentSupport = (doc.getObject("XZ_Plane"), [""])
sketch11.MapMode = "FlatFace"
sketch11.AttachmentOffset = App.Placement(Vector(0, 0, -3.2), App.Rotation())
sketch11.addGeometry([
    Part.Circle(Vector(-104.110178, -17.033872, 0), Vector(0, 0, 1), 3),
    Part.Circle(Vector(-104.110178, 17.033872, 0), Vector(0, 0, 1), 3),
], False)
sketch11.addConstraint([
    Sketcher.Constraint("Equal", 0, 1),
    Sketcher.Constraint("Symmetric", 0, 3, 1, 3, -1),
    Sketcher.Constraint("Diameter", 0, Q("6 mm")),
    Sketcher.Constraint("DistanceY", 0, 3, -1, 1, Q("17.033872 mm")),
    Sketcher.Constraint("DistanceX", 0, 3, -1, 1, Q("104.110178 mm")),
])
pocket6 = body.newObject("PartDesign::Pocket", "Pocket005")
pocket6.Profile = sketch11
pocket6.Length = 7
pocket6.Reversed = True

doc.recompute()
